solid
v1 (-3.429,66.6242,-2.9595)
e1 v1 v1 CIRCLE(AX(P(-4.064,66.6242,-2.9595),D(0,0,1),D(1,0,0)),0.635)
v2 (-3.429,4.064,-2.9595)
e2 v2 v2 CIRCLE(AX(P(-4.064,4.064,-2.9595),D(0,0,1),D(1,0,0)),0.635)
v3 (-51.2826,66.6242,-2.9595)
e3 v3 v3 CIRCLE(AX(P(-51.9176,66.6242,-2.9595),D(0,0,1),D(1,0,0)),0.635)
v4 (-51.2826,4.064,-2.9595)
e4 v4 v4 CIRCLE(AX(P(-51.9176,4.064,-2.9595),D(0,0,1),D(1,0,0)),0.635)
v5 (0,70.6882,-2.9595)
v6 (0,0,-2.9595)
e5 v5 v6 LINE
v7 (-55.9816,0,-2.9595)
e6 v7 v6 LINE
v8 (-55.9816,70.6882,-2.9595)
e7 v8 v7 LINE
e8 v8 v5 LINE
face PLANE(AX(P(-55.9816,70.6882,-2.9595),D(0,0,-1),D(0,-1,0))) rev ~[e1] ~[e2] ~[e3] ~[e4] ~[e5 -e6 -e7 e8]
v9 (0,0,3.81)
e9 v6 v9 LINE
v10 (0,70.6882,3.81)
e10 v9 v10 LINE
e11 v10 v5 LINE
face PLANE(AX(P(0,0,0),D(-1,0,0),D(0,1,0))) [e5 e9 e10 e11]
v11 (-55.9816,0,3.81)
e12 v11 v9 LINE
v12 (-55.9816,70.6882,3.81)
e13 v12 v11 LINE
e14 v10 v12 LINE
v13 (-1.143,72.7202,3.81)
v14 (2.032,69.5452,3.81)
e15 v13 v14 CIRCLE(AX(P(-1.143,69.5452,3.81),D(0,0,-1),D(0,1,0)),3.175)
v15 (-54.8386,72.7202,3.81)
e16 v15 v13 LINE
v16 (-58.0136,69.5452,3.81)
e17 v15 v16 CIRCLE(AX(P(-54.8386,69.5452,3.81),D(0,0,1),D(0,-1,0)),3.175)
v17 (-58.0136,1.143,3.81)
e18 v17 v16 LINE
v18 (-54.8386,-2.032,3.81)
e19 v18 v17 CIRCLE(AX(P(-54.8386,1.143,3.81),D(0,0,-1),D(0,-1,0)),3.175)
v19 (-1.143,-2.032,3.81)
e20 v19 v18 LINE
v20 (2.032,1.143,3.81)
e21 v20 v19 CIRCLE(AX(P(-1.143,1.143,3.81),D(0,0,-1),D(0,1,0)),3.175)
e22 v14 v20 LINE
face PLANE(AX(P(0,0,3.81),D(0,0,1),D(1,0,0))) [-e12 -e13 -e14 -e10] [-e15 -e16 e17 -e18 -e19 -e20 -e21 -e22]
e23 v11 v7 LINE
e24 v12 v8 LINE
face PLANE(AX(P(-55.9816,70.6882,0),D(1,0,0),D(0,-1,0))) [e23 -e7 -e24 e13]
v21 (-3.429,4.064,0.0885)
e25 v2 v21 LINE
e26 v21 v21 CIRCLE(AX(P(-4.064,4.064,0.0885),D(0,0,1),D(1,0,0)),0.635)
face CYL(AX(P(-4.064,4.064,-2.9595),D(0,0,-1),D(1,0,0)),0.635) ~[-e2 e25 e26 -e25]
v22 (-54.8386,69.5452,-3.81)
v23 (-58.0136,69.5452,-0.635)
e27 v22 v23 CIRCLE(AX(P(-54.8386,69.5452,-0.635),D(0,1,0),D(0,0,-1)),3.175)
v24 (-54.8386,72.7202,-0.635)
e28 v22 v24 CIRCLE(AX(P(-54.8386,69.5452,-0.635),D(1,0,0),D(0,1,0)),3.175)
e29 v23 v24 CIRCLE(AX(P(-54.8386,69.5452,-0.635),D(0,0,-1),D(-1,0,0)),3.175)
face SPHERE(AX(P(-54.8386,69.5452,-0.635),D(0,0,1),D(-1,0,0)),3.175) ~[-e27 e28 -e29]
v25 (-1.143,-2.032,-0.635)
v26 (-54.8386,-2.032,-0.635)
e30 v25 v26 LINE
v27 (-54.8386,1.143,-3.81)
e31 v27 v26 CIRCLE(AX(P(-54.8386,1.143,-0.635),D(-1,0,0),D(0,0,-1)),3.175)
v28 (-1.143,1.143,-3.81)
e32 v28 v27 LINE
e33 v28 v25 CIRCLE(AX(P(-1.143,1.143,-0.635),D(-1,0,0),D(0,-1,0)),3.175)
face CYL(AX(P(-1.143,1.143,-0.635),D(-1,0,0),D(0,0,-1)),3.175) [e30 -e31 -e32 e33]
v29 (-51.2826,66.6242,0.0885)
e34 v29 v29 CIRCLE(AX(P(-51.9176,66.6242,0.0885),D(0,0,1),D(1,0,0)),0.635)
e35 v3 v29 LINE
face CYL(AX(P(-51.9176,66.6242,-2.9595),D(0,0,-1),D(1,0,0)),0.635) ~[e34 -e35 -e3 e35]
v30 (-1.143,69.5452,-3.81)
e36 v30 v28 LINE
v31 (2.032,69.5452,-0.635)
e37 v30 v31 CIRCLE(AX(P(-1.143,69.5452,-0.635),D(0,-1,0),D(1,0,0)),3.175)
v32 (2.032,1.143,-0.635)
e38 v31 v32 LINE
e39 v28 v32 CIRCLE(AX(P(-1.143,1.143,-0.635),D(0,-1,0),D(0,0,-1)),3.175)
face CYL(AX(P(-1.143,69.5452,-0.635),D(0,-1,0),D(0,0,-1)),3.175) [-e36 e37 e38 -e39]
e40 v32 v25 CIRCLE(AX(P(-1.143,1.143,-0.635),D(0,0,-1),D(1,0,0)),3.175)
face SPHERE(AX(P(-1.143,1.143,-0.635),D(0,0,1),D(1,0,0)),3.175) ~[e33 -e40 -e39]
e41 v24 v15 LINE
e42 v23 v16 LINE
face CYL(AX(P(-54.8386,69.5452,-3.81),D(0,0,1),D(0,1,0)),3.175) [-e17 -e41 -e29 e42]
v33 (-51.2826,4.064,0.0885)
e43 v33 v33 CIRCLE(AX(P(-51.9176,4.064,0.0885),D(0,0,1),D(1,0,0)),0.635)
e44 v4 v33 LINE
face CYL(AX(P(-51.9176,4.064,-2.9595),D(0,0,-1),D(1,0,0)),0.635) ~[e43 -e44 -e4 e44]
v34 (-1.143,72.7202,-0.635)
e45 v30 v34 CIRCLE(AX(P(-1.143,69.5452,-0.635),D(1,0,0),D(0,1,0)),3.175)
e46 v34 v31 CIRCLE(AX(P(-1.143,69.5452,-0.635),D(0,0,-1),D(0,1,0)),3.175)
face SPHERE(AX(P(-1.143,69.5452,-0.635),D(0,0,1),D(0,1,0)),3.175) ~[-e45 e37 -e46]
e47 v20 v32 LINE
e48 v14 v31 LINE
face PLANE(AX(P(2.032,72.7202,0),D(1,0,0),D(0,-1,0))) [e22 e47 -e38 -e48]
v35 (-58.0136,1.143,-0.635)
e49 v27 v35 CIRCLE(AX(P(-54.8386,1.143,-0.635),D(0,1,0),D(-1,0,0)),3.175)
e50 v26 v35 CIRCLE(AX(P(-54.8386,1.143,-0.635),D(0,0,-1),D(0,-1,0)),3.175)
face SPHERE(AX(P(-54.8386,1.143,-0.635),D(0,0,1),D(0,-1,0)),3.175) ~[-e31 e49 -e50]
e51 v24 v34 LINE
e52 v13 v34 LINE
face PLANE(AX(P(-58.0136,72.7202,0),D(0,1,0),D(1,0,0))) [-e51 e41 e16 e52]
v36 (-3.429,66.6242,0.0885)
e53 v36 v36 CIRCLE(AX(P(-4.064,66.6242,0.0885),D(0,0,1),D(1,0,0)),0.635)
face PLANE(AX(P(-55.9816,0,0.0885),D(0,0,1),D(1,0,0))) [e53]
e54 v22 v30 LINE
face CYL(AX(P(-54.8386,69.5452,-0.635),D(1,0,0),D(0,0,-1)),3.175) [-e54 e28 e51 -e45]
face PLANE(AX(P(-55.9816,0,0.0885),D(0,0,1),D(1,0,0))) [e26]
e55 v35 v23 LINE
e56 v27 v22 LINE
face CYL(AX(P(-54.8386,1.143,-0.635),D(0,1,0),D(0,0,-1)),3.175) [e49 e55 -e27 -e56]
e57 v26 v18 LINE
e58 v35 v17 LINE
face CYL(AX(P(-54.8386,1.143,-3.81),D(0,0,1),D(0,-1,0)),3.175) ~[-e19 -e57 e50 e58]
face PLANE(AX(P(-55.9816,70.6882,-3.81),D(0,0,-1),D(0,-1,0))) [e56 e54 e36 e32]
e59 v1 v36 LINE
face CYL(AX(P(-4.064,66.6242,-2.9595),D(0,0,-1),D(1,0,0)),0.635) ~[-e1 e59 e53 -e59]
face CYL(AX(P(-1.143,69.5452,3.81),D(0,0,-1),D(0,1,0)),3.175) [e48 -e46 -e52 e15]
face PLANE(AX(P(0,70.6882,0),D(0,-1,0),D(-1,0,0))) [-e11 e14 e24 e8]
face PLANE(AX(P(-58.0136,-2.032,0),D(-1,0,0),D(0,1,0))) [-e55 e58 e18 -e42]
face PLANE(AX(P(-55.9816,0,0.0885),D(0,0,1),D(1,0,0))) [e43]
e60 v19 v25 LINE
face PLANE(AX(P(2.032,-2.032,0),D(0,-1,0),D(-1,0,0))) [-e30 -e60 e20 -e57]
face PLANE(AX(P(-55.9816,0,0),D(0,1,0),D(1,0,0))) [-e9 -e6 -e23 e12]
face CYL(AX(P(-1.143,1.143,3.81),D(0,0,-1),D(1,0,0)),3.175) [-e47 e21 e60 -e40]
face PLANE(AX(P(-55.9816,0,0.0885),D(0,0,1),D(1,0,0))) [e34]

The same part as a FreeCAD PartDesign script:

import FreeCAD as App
import Part
import Sketcher
from FreeCAD import Vector
Q = App.Units.Quantity


def edges_at(feature, points):
    """Names of the edges that pass closest to the given points."""
    edges = feature.Shape.Edges
    near = lambda p: min(range(len(edges)), key=lambda i: edges[i].distToShape(Part.Vertex(*p))[0])
    return sorted({f"Edge{near(p) + 1}" for p in points})

doc = App.newDocument("Part")
body = doc.addObject("PartDesign::Body", "Body")

# Sketch on XY plane
sketch1 = doc.addObject("Sketcher::SketchObject", "Sketch")
body.addObject(sketch1)
sketch1.AttachmentSupport = (doc.XY_Plane, [""])
sketch1.MapMode = "FlatFace"
sketch1.addGeometry([
    Part.LineSegment(Vector(2, 73, 0), Vector(-58, 73, 0)),  # 0
    Part.LineSegment(Vector(-58, 73, 0), Vector(-58, -2, 0)),  # 1
    Part.LineSegment(Vector(-58, -2, 0), Vector(2, -2, 0)),  # 2
    Part.LineSegment(Vector(2, -2, 0), Vector(2, 73, 0)),  # 3
    Part.LineSegment(Vector(0, 71, 0), Vector(0, 0, 0)),  # 4
    Part.LineSegment(Vector(0, 0, 0), Vector(-56, 0, 0)),  # 5
    Part.LineSegment(Vector(-56, 0, 0), Vector(-56, 71, 0)),  # 6
    Part.LineSegment(Vector(-56, 71, 0), Vector(0, 71, 0)),  # 7
], False)
sketch1.addConstraint([
    Sketcher.Constraint("Coincident", 0, 2, 1, 1),
    Sketcher.Constraint("Coincident", 1, 2, 2, 1),
    Sketcher.Constraint("Coincident", 2, 2, 3, 1),
    Sketcher.Constraint("Coincident", 3, 2, 0, 1),
    Sketcher.Constraint("Coincident", 4, 2, 5, 1),
    Sketcher.Constraint("Coincident", 5, 2, 6, 1),
    Sketcher.Constraint("Coincident", 6, 2, 7, 1),
    Sketcher.Constraint("Coincident", 7, 2, 4, 1),
    Sketcher.Constraint("Horizontal", 0),
    Sketcher.Constraint("Vertical", 1),
    Sketcher.Constraint("Horizontal", 2),
    Sketcher.Constraint("Vertical", 3),
    Sketcher.Constraint("Vertical", 4),
    Sketcher.Constraint("Horizontal", 5),
    Sketcher.Constraint("Vertical", 6),
    Sketcher.Constraint("Horizontal", 7),
    Sketcher.Constraint("Coincident", 4, 2, -1, 1),
    Sketcher.Constraint("DistanceX", 5, 2, 5, 1, Q("2.204 in")),
    Sketcher.Constraint("DistanceY", 4, 2, 4, 1, Q("2.783 in")),
    Sketcher.Constraint("DistanceY", 1, 2, -1, 1, Q("0.08 in")),
    Sketcher.Constraint("DistanceX", -1, 1, 2, 2, Q("0.08 in")),
    Sketcher.Constraint("DistanceX", 1, 2, 5, 2, Q("0.08 in")),
    Sketcher.Constraint("DistanceY", 6, 2, 0, 2, Q("0.08 in")),
])
pad1 = doc.addObject("PartDesign::Pad", "Pad")
body.addObject(pad1)
pad1.Profile = sketch1
pad1.Length = Q("0.3 in")
pad1.Midplane = True

# Sketch on YZ plane
sketch2 = doc.addObject("Sketcher::SketchObject", "Sketch001")
body.addObject(sketch2)
sketch2.AttachmentSupport = (doc.YZ_Plane, [""])
sketch2.MapMode = "FlatFace"
sketch2.AttachmentOffset = App.Placement(Vector(0, 0, -2.204 * 25.4), App.Rotation())
sketch2.addGeometry([
    Part.LineSegment(Vector(0, -3.8, 0), Vector(70.7, -3.8, 0)),
    Part.LineSegment(Vector(70.7, -3.8, 0), Vector(70.7, -3, 0)),
    Part.LineSegment(Vector(70.7, -3, 0), Vector(0, -3, 0)),
    Part.LineSegment(Vector(0, -3, 0), Vector(0, -3.8, 0)),
], False)
sketch2.addConstraint([
    Sketcher.Constraint("Coincident", 0, 2, 1, 1),
    Sketcher.Constraint("Coincident", 1, 2, 2, 1),
    Sketcher.Constraint("Coincident", 2, 2, 3, 1),
    Sketcher.Constraint("Coincident", 3, 2, 0, 1),
    Sketcher.Constraint("Horizontal", 0),
    Sketcher.Constraint("Vertical", 1),
    Sketcher.Constraint("Horizontal", 2),
    Sketcher.Constraint("Vertical", 3),
    Sketcher.Constraint("PointOnObject", 2, 2, -2),
    Sketcher.Constraint("DistanceX", 0, 1, 0, 2, Q("2.783 in")),
    Sketcher.Constraint("DistanceY", 0, 2, -1, 1, Q("0.15 in")),
    Sketcher.Constraint("DistanceY", 1, 1, 1, 2, Q("0.8505 mm")),
])
pad2 = doc.addObject("PartDesign::Pad", "Pad001")
body.addObject(pad2)
pad2.Profile = sketch2
pad2.Length = Q("2.204 in")

# Sketch on XY plane
sketch3 = doc.addObject("Sketcher::SketchObject", "Sketch002")
body.addObject(sketch3)
sketch3.AttachmentSupport = (doc.XY_Plane, [""])
sketch3.MapMode = "FlatFace"
sketch3.AttachmentOffset = App.Placement(Vector(0, 0, -2.9595), App.Rotation())
sketch3.addGeometry([
    Part.Circle(Vector(-4.1, 4.1, 0), Vector(0, 0, 1), 0.6),
    Part.Circle(Vector(-51.9, 4.1, 0), Vector(0, 0, 1), 0.6),
    Part.Circle(Vector(-51.9, 66.6, 0), Vector(0, 0, 1), 0.6),
    Part.Circle(Vector(-4.1, 66.6, 0), Vector(0, 0, 1), 0.6),
], False)
sketch3.addConstraint([
    Sketcher.Constraint("Equal", 0, 1),
    Sketcher.Constraint("Equal", 1, 2),
    Sketcher.Constraint("Equal", 2, 3),
    Sketcher.Constraint("Horizontal", 0, 3, 1, 3),
    Sketcher.Constraint("Horizontal", 2, 3, 3, 3),
    Sketcher.Constraint("Vertical", 1, 3, 2, 3),
    Sketcher.Constraint("Vertical", 0, 3, 3, 3),
    Sketcher.Constraint("Diameter", 0, Q("0.05 in")),
    Sketcher.Constraint("DistanceX", 0, 3, -1, 1, Q("0.16 in")),
    Sketcher.Constraint("DistanceY", -1, 1, 0, 3, Q("0.16 in")),
    Sketcher.Constraint("DistanceX", 1, 3, -1, 1, Q("2.044 in")),
    Sketcher.Constraint("DistanceY", -1, 1, 2, 3, Q("2.623 in")),
])
pad3 = doc.addObject("PartDesign::Pad", "Pad002")
body.addObject(pad3)
pad3.Profile = sketch3
pad3.Length = Q("0.12 in")
doc.recompute()

fillet = doc.addObject("PartDesign::Fillet", "Fillet")
body.addObject(fillet)
fillet.Base = (pad3, edges_at(pad3, [
    (2.032, 72.72, 0),
    (2.032, -2.032, 0),
    (-58.014, 72.72, 0),
    (-58.014, -2.032, 0),
]))
fillet.Radius = Q("0.125 in")
doc.recompute()

fillet2 = doc.addObject("PartDesign::Fillet", "Fillet001")
body.addObject(fillet2)
fillet2.Base = (fillet, edges_at(fillet, [
    (1.102, 71.79, -3.81),
    (2.032, 35.344, -3.81),
    (1.102, -1.102, -3.81),
    (-27.991, -2.032, -3.81),
    (-57.084, -1.102, -3.81),
    (-58.014, 35.344, -3.81),
    (-57.084, 71.79, -3.81),
    (-27.991, 72.72, -3.81),
]))
fillet2.Radius = Q("0.125 in")

doc.recompute()
